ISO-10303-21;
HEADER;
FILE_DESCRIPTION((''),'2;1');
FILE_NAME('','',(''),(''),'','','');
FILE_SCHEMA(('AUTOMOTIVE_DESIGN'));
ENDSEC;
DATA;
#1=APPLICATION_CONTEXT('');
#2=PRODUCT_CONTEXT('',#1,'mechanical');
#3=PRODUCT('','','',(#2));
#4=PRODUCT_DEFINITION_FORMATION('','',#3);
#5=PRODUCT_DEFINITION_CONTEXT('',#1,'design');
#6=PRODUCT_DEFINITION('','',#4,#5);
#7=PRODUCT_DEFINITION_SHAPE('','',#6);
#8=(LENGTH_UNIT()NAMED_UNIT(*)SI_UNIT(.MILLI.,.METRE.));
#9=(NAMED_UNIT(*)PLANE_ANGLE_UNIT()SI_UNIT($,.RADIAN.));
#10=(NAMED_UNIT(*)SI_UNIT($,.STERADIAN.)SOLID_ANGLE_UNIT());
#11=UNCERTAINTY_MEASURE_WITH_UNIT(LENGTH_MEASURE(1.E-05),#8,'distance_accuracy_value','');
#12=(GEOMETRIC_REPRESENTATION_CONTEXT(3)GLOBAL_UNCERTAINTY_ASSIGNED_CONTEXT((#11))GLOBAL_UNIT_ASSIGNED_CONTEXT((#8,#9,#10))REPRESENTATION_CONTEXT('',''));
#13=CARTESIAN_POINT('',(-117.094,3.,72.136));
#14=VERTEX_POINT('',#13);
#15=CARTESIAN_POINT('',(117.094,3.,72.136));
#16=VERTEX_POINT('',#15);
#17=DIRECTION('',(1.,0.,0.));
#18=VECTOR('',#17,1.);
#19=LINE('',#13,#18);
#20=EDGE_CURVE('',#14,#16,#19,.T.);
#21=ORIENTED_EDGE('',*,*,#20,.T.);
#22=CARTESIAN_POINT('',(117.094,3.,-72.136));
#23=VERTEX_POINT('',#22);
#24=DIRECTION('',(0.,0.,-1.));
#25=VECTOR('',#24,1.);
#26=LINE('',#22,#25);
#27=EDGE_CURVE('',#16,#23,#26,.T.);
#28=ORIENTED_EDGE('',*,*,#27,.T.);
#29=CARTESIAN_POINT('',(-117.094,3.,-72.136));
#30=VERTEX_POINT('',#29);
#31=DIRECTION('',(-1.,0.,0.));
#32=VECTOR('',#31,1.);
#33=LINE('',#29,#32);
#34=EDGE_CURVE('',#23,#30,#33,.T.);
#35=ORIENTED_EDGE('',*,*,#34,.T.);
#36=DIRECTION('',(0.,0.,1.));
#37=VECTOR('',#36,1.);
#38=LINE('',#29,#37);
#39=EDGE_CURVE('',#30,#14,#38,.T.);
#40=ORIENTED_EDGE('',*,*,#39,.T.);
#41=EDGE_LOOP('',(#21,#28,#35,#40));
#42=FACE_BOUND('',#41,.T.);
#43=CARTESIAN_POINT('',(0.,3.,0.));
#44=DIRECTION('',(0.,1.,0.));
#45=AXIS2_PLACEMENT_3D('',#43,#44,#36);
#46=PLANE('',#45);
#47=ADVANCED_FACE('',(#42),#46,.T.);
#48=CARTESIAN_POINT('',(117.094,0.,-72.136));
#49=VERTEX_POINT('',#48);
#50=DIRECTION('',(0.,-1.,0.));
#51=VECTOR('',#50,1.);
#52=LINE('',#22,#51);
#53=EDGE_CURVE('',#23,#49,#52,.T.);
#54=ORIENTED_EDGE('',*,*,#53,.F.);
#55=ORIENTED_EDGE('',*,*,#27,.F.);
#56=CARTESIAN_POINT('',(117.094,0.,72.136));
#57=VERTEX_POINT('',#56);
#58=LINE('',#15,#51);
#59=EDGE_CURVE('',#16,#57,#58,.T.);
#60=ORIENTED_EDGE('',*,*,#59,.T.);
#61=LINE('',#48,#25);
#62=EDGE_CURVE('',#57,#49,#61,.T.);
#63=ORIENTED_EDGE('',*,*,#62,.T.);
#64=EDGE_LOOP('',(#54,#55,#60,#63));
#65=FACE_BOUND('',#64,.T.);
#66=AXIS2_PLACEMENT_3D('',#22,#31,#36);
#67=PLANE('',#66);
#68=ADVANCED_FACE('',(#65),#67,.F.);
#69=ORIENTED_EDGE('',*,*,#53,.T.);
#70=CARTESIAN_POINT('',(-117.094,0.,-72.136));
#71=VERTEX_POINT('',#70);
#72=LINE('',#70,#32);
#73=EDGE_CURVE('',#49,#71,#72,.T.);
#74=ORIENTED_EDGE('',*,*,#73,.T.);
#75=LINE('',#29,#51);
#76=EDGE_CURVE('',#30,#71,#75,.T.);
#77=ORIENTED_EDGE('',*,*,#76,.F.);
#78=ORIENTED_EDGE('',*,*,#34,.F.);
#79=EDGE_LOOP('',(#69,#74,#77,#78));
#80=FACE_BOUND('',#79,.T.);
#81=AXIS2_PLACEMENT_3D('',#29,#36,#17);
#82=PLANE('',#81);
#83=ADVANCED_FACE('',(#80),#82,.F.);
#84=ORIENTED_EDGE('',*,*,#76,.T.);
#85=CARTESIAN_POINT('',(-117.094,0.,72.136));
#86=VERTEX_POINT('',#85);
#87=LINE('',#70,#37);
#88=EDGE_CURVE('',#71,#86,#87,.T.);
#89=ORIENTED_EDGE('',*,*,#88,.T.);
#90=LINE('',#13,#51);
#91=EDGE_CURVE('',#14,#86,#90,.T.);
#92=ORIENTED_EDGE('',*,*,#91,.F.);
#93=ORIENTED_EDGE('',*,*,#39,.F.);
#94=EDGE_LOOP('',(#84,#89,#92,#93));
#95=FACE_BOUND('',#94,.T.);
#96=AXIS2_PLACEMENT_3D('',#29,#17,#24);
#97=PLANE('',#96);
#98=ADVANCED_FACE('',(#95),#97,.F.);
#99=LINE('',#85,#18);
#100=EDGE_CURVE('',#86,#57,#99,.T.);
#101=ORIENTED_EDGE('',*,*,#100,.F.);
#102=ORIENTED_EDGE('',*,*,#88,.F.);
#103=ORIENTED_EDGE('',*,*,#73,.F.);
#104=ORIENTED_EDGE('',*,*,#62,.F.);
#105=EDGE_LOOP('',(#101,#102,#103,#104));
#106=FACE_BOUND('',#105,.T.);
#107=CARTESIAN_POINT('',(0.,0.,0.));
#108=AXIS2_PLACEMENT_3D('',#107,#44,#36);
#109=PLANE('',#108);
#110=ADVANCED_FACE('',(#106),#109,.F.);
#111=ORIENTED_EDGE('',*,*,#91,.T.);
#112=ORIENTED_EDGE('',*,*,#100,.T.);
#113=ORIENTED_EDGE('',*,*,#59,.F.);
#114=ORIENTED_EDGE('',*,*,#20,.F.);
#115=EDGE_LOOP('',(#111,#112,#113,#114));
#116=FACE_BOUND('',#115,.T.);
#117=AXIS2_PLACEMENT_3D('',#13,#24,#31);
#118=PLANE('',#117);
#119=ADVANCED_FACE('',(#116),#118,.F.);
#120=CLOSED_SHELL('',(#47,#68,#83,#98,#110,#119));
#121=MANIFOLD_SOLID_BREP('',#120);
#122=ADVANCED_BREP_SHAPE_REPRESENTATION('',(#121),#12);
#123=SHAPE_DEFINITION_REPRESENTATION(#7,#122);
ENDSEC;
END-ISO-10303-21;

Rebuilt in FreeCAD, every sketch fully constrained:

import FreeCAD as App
import Part
import Sketcher

V = App.Vector
Q = App.Units.Quantity

doc = App.newDocument("Part")
body = doc.addObject("PartDesign::Body", "Body")

sketch1 = body.newObject("Sketcher::SketchObject", "Sketch")
sketch1.AttachmentSupport = (doc.getObject("XZ_Plane"), [""])
sketch1.MapMode = "FlatFace"
sketch1.addGeometry(Part.LineSegment(V(-117, -72, 0), V(-117, 72, 0)), False)
sketch1.addGeometry(Part.LineSegment(V(-117, 72, 0), V(117, 72, 0)), False)
sketch1.addGeometry(Part.LineSegment(V(117, 72, 0), V(117, -72, 0)), False)
sketch1.addGeometry(Part.LineSegment(V(117, -72, 0), V(-117, -72, 0)), False)
sketch1.addConstraint(Sketcher.Constraint("Coincident", 0, 2, 1, 1))
sketch1.addConstraint(Sketcher.Constraint("Coincident", 1, 2, 2, 1))
sketch1.addConstraint(Sketcher.Constraint("Coincident", 2, 2, 3, 1))
sketch1.addConstraint(Sketcher.Constraint("Coincident", 3, 2, 0, 1))
sketch1.addConstraint(Sketcher.Constraint("Vertical", 0))
sketch1.addConstraint(Sketcher.Constraint("Horizontal", 1))
sketch1.addConstraint(Sketcher.Constraint("Vertical", 2))
sketch1.addConstraint(Sketcher.Constraint("Horizontal", 3))
sketch1.addConstraint(Sketcher.Constraint("Symmetric", 0, 2, 2, 2, -1, 1))
sketch1.addConstraint(Sketcher.Constraint("DistanceX", 1, 1, 1, 2, Q("9.22 in")))
sketch1.addConstraint(Sketcher.Constraint("DistanceY", 0, 1, 0, 2, Q("5.68 in")))
pad1 = body.newObject("PartDesign::Pad", "Pad")
pad1.Profile = sketch1
pad1.Length = 3
pad1.Reversed = True

doc.recompute()
